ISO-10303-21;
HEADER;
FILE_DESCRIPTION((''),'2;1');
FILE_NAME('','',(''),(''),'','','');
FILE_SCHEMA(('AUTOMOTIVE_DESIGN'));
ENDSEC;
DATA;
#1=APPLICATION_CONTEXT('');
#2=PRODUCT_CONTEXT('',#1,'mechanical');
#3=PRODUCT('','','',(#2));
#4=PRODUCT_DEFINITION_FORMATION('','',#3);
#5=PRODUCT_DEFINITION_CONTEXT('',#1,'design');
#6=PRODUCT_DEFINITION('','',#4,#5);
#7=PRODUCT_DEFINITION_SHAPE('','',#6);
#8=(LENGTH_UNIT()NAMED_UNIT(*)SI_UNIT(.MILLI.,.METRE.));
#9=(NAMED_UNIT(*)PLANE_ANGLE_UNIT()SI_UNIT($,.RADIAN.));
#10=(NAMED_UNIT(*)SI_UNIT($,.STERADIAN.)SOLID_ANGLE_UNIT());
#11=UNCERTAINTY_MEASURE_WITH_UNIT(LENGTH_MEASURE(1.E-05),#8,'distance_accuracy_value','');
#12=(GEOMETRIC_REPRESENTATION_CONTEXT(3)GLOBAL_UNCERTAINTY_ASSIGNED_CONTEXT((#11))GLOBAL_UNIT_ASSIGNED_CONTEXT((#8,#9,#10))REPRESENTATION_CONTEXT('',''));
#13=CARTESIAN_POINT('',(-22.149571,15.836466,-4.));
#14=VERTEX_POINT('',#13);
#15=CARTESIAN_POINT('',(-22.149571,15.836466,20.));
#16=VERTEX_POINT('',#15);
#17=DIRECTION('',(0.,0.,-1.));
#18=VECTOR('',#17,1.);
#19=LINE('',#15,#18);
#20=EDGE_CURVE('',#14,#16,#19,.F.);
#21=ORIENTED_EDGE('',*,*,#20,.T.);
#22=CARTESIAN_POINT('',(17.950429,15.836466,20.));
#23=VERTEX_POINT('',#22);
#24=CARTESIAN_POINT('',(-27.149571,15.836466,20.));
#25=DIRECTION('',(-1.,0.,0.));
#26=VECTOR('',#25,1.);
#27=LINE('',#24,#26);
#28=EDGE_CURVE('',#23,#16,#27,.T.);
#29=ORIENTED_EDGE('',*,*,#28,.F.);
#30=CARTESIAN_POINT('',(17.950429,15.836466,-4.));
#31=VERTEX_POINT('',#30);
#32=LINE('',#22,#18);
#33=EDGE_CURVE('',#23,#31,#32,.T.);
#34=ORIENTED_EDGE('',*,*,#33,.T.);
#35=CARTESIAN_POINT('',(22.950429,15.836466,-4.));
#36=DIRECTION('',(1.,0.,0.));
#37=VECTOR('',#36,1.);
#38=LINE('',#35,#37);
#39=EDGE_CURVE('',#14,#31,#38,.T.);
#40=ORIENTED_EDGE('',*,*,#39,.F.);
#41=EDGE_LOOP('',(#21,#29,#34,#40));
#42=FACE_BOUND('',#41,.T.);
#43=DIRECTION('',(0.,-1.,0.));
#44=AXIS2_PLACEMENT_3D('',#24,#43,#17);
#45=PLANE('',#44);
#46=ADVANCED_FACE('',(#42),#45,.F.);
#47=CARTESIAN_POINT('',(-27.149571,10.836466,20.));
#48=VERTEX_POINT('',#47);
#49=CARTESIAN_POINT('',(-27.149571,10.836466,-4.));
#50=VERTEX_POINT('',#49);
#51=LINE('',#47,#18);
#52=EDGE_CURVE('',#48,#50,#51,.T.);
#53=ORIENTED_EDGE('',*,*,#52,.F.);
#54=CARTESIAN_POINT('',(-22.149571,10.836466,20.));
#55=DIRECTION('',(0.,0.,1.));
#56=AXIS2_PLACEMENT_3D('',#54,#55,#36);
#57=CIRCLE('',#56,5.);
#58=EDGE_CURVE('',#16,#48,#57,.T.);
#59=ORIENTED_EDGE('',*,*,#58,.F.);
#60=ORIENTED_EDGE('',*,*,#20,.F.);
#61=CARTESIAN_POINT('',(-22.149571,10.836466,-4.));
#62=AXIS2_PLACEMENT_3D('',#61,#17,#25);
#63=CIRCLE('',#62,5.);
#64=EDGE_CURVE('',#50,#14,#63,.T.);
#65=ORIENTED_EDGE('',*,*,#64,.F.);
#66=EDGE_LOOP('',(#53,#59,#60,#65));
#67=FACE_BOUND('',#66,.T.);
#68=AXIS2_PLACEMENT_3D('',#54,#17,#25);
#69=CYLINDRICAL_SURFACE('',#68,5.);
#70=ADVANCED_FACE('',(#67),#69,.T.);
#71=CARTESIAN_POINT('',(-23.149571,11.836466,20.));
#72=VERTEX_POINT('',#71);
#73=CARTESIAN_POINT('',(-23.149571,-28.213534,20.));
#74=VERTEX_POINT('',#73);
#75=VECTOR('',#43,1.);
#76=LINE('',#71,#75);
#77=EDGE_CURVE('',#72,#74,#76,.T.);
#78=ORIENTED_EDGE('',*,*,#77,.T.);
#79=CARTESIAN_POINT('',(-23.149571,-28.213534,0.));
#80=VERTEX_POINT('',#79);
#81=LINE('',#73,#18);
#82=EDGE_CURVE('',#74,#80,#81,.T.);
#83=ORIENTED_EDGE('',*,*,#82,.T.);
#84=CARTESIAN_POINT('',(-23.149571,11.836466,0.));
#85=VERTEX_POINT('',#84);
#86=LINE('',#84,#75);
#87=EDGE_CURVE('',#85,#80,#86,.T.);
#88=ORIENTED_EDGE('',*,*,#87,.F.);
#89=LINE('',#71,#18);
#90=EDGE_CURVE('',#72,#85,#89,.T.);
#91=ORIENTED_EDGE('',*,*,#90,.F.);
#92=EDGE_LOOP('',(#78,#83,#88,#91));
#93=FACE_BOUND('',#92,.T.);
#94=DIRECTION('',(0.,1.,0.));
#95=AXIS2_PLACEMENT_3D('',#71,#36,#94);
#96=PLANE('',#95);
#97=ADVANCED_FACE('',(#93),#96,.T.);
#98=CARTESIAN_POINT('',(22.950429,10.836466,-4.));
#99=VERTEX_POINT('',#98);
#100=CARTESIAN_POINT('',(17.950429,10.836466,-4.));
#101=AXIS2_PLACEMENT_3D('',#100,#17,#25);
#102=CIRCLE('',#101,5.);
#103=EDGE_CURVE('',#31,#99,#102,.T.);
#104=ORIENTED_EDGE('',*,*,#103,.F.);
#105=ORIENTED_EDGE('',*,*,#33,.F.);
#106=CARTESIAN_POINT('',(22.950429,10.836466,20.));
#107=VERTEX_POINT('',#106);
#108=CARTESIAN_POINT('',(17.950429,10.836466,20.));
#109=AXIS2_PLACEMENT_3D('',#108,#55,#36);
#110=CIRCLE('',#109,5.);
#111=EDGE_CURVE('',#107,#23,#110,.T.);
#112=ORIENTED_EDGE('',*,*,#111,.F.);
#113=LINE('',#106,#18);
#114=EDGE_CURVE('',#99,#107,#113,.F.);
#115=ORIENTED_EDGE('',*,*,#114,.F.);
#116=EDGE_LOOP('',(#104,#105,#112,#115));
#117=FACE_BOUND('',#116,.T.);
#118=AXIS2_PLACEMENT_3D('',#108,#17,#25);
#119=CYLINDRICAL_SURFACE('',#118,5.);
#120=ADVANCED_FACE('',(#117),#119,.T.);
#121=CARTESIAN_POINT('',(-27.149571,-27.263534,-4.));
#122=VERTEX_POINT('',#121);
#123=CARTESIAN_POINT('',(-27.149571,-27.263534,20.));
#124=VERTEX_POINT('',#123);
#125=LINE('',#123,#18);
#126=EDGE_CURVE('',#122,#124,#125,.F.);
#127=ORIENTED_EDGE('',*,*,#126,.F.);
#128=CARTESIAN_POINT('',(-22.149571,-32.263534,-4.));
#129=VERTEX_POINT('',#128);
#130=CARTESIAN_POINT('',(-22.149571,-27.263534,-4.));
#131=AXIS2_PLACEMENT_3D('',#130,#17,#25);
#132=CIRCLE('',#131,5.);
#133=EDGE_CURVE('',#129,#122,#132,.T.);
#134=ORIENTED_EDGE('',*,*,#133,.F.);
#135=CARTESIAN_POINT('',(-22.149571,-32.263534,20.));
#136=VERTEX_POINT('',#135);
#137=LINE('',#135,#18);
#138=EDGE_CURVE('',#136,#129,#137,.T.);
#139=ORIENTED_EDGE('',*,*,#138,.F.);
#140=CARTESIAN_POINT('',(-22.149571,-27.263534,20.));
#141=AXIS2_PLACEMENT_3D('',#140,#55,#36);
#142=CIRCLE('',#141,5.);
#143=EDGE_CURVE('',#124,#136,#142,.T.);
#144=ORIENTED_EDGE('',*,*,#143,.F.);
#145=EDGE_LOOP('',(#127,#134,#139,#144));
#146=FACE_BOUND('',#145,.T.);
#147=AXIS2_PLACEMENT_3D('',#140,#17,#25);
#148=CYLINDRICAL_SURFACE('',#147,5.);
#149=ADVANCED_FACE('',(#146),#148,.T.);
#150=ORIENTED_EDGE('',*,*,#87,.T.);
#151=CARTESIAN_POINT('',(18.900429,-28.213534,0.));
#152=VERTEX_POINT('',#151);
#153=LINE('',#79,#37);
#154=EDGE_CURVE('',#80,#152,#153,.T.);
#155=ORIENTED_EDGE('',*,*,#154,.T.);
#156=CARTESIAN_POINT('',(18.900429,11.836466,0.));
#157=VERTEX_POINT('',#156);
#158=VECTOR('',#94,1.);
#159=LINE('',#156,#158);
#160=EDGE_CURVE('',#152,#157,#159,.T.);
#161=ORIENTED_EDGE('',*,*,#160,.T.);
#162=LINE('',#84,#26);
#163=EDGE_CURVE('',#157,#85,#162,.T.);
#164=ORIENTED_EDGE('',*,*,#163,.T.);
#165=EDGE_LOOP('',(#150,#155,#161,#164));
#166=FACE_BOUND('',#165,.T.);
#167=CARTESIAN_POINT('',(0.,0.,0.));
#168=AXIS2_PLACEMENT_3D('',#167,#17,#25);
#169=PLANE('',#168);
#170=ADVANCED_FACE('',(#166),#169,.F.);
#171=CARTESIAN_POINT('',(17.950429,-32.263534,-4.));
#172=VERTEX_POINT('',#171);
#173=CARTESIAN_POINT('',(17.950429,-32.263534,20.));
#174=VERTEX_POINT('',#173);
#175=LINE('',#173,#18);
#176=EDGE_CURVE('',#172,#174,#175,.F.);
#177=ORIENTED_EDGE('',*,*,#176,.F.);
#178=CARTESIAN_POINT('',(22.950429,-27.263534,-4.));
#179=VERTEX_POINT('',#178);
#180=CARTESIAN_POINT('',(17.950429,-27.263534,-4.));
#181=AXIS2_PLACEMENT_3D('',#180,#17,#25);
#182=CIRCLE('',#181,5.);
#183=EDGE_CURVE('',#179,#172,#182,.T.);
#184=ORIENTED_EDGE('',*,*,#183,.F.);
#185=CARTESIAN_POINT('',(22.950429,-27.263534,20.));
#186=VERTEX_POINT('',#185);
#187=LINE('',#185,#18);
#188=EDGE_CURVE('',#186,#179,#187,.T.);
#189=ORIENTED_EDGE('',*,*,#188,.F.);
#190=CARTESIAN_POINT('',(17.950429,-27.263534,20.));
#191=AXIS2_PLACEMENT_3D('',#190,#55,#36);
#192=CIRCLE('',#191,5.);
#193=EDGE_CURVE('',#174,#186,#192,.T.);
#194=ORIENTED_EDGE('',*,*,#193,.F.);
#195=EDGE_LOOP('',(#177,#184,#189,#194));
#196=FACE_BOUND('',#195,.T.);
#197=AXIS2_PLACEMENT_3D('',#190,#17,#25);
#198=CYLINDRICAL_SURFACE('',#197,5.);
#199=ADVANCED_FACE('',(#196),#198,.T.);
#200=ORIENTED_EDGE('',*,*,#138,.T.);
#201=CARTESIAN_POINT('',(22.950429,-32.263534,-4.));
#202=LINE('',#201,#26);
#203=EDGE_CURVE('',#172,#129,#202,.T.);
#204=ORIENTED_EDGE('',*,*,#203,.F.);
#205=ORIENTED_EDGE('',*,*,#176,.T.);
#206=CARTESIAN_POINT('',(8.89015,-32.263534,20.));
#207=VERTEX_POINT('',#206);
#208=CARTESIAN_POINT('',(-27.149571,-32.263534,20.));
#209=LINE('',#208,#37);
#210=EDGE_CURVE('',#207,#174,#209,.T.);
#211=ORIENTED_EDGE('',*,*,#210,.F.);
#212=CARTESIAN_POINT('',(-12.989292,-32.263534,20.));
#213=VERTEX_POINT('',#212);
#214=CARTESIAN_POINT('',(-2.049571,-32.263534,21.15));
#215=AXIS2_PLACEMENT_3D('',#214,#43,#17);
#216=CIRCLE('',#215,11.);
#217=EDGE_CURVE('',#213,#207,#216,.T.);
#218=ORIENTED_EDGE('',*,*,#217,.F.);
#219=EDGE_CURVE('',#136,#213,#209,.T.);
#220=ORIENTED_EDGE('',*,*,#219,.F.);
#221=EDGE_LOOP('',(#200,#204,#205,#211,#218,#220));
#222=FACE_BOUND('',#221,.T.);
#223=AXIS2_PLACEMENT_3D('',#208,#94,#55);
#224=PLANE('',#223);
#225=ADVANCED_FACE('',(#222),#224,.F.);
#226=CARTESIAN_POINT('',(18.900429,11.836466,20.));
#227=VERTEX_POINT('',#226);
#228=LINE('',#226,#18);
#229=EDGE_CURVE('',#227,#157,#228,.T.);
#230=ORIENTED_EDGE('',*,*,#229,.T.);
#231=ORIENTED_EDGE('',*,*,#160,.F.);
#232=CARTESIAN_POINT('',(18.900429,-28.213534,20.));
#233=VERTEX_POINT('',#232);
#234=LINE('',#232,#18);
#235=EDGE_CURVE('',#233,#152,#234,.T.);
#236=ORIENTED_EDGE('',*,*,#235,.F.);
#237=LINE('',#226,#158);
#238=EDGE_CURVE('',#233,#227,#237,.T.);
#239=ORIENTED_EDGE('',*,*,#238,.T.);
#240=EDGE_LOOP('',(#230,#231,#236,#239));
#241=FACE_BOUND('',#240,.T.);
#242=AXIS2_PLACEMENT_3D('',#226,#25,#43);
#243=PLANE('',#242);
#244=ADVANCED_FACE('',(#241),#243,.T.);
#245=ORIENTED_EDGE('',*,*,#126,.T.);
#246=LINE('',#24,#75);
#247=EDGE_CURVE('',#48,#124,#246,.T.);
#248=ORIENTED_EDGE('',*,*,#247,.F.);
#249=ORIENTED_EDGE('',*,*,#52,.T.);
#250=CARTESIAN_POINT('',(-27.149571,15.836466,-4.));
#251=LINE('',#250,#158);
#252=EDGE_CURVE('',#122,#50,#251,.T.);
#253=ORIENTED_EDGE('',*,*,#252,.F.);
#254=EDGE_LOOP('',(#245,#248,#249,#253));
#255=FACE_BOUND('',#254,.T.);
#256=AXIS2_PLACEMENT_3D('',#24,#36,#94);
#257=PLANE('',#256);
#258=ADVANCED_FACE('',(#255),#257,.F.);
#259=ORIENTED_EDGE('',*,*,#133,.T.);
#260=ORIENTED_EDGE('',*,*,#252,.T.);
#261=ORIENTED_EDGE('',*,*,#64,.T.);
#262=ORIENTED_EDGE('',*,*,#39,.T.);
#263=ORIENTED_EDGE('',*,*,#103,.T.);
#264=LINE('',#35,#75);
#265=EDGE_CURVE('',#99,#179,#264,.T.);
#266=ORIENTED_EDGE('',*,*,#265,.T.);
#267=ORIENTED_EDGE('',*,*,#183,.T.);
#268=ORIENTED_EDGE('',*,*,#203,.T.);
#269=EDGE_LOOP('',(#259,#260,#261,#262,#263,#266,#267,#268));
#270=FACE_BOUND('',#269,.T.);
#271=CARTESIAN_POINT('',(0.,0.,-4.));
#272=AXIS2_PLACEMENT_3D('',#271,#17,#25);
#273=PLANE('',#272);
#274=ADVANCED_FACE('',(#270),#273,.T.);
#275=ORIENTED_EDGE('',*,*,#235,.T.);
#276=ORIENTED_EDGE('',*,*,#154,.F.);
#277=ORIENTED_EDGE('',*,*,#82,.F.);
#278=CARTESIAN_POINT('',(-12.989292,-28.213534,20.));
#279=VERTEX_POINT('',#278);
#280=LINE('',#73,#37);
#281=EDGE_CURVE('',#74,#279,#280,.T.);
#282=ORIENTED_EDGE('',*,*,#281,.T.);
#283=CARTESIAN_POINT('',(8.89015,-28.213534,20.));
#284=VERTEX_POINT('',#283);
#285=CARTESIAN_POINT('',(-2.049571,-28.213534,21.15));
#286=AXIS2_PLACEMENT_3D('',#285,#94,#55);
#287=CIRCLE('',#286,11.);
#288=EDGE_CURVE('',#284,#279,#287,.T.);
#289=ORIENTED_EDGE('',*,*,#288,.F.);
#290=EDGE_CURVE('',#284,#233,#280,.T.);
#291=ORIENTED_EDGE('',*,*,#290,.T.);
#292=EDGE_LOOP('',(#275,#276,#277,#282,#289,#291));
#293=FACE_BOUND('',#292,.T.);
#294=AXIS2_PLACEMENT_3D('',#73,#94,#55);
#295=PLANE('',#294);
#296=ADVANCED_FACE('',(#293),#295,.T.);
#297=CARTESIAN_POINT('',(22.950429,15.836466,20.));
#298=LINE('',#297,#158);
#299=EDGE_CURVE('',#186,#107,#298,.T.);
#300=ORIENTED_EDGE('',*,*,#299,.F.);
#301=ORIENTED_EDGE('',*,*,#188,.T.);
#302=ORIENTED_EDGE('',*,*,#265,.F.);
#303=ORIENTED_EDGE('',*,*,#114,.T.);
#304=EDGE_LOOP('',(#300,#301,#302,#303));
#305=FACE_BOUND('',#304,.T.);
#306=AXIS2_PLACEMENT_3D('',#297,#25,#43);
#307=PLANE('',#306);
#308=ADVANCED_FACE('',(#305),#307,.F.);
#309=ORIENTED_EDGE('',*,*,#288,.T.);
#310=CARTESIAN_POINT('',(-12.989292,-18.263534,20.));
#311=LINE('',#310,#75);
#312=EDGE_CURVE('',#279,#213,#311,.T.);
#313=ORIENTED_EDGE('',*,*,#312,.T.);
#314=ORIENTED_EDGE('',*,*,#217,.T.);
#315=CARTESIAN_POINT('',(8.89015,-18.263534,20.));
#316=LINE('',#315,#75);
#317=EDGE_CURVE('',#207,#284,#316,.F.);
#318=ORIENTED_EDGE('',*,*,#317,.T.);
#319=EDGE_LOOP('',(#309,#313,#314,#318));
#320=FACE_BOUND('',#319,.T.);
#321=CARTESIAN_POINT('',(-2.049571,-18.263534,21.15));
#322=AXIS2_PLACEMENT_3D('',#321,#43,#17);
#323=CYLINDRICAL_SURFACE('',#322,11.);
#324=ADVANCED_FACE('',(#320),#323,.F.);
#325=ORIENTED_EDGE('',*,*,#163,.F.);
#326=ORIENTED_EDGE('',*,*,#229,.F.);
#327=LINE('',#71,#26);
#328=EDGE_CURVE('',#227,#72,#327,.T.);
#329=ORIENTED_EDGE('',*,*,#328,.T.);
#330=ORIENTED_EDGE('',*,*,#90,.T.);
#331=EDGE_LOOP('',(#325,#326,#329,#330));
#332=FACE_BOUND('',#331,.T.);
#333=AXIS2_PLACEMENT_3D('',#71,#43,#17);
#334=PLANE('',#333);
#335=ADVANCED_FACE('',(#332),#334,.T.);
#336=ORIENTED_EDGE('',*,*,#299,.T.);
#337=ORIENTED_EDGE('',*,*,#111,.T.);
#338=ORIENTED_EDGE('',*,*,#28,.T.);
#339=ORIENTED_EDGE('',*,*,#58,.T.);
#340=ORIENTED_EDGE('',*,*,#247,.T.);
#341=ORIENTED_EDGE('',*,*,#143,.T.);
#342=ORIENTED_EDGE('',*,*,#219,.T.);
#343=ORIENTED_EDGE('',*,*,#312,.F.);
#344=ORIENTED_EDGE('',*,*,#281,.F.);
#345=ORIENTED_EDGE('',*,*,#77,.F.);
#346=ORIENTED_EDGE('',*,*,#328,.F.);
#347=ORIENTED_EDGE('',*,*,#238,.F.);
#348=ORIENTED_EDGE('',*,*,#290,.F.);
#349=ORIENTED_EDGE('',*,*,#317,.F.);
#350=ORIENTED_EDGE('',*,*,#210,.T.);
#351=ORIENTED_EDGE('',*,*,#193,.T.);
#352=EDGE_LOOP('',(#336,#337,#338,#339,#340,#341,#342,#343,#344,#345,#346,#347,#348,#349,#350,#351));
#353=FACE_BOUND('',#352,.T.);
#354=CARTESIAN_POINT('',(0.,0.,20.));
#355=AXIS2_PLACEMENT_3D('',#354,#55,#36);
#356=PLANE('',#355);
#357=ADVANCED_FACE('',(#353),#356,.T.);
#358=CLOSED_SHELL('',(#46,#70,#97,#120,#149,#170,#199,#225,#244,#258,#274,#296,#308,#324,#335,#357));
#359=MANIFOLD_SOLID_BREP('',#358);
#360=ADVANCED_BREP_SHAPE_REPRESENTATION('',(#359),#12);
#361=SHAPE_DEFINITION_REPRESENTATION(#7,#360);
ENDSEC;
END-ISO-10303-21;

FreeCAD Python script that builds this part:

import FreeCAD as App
import Part
import Sketcher
from FreeCAD import Vector


def edges_at(feature, points):
    """Names of the edges that pass closest to the given points."""
    edges = feature.Shape.Edges
    near = lambda p: min(range(len(edges)), key=lambda i: edges[i].distToShape(Part.Vertex(*p))[0])
    return sorted({f"Edge{near(p) + 1}" for p in points})

doc = App.newDocument("Part")
body = doc.addObject("PartDesign::Body", "Body")

# Sketch on XY plane
sketch1 = body.newObject("Sketcher::SketchObject", "Sketch")
sketch1.AttachmentSupport = (doc.getObject("XY_Plane"), [""])
sketch1.MapMode = "FlatFace"
sketch1.addGeometry(Part.LineSegment(Vector(-27.149571, 15.836466, 0), Vector(-27.149571, -32.263534, 0)), False)
sketch1.addGeometry(Part.LineSegment(Vector(-27.149571, -32.263534, 0), Vector(22.950429, -32.263534, 0)), False)
sketch1.addGeometry(Part.LineSegment(Vector(22.950429, -32.263534, 0), Vector(22.950429, 15.836466, 0)), False)
sketch1.addGeometry(Part.LineSegment(Vector(22.950429, 15.836466, 0), Vector(-27.149571, 15.836466, 0)), False)
sketch1.addGeometry(Part.LineSegment(Vector(18.900429, -28.213534, 0), Vector(-23.149571, -28.213534, 0)), False)
sketch1.addGeometry(Part.LineSegment(Vector(-23.149571, -28.213534, 0), Vector(-23.149571, 11.836466, 0)), False)
sketch1.addGeometry(Part.LineSegment(Vector(-23.149571, 11.836466, 0), Vector(18.900429, 11.836466, 0)), False)
sketch1.addGeometry(Part.LineSegment(Vector(18.900429, 11.836466, 0), Vector(18.900429, -28.213534, 0)), False)
sketch1.addConstraint(Sketcher.Constraint("Coincident", 0, 2, 1, 1))
sketch1.addConstraint(Sketcher.Constraint("Coincident", 1, 2, 2, 1))
sketch1.addConstraint(Sketcher.Constraint("Coincident", 2, 2, 3, 1))
sketch1.addConstraint(Sketcher.Constraint("Coincident", 3, 2, 0, 1))
sketch1.addConstraint(Sketcher.Constraint("Coincident", 4, 2, 5, 1))
sketch1.addConstraint(Sketcher.Constraint("Coincident", 5, 2, 6, 1))
sketch1.addConstraint(Sketcher.Constraint("Coincident", 6, 2, 7, 1))
sketch1.addConstraint(Sketcher.Constraint("Coincident", 7, 2, 4, 1))
sketch1.addConstraint(Sketcher.Constraint("Vertical", 0))
sketch1.addConstraint(Sketcher.Constraint("Horizontal", 1))
sketch1.addConstraint(Sketcher.Constraint("Vertical", 2))
sketch1.addConstraint(Sketcher.Constraint("Horizontal", 3))
sketch1.addConstraint(Sketcher.Constraint("Horizontal", 4))
sketch1.addConstraint(Sketcher.Constraint("Vertical", 5))
sketch1.addConstraint(Sketcher.Constraint("Horizontal", 6))
sketch1.addConstraint(Sketcher.Constraint("Vertical", 7))
sketch1.addConstraint(Sketcher.Constraint("DistanceX", 1, 1, 1, 2, 50.1))
sketch1.addConstraint(Sketcher.Constraint("DistanceY", 0, 2, 0, 1, 48.1))
sketch1.addConstraint(Sketcher.Constraint("DistanceX", 0, 2, 4, 2, 4.0))
sketch1.addConstraint(Sketcher.Constraint("DistanceY", 5, 2, 3, 2, 4.0))
sketch1.addConstraint(Sketcher.Constraint("DistanceX", 4, 2, 4, 1, 42.05))
sketch1.addConstraint(Sketcher.Constraint("DistanceY", 5, 1, 5, 2, 40.05))
sketch1.addConstraint(Sketcher.Constraint("DistanceX", 0, 2, -1, 1, 27.149571))
sketch1.addConstraint(Sketcher.Constraint("DistanceY", 0, 2, -1, 1, 32.263534))
pad1 = body.newObject("PartDesign::Pad", "Pad")
pad1.Profile = sketch1
pad1.Length = 20

# Sketch on XY plane
sketch2 = body.newObject("Sketcher::SketchObject", "Sketch001")
sketch2.AttachmentSupport = (doc.getObject("XY_Plane"), [""])
sketch2.MapMode = "FlatFace"
sketch2.addGeometry(Part.LineSegment(Vector(22.950429, 15.836466, 0), Vector(22.950429, -32.263534, 0)), False)
sketch2.addGeometry(Part.LineSegment(Vector(22.950429, -32.263534, 0), Vector(-27.149571, -32.263534, 0)), False)
sketch2.addGeometry(Part.LineSegment(Vector(-27.149571, -32.263534, 0), Vector(-27.149571, 15.836466, 0)), False)
sketch2.addGeometry(Part.LineSegment(Vector(-27.149571, 15.836466, 0), Vector(22.950429, 15.836466, 0)), False)
sketch2.addConstraint(Sketcher.Constraint("Coincident", 0, 2, 1, 1))
sketch2.addConstraint(Sketcher.Constraint("Coincident", 1, 2, 2, 1))
sketch2.addConstraint(Sketcher.Constraint("Coincident", 2, 2, 3, 1))
sketch2.addConstraint(Sketcher.Constraint("Coincident", 3, 2, 0, 1))
sketch2.addConstraint(Sketcher.Constraint("Vertical", 0))
sketch2.addConstraint(Sketcher.Constraint("Horizontal", 1))
sketch2.addConstraint(Sketcher.Constraint("Vertical", 2))
sketch2.addConstraint(Sketcher.Constraint("Horizontal", 3))
sketch2.addConstraint(Sketcher.Constraint("DistanceX", 1, 2, 1, 1, 50.1))
sketch2.addConstraint(Sketcher.Constraint("DistanceY", 0, 2, 0, 1, 48.1))
sketch2.addConstraint(Sketcher.Constraint("DistanceX", -1, 1, 0, 2, 22.950429))
sketch2.addConstraint(Sketcher.Constraint("DistanceY", 0, 2, -1, 1, 32.263534))
pad2 = body.newObject("PartDesign::Pad", "Pad001")
pad2.Profile = sketch2
pad2.Length = 4
pad2.Reversed = True

# Sketch on XZ plane
sketch3 = body.newObject("Sketcher::SketchObject", "Sketch002")
sketch3.AttachmentSupport = (doc.getObject("XZ_Plane"), [""])
sketch3.MapMode = "FlatFace"
sketch3.AttachmentOffset = App.Placement(Vector(0, 0, 32.263534), App.Rotation())
sketch3.addGeometry(Part.Circle(Vector(-2.049571, 21.15, 0), Vector(0, 0, 1), 11), False)
sketch3.addConstraint(Sketcher.Constraint("Diameter", 0, 22.0))
sketch3.addConstraint(Sketcher.Constraint("DistanceY", -1, 1, 0, 3, 21.15))
sketch3.addConstraint(Sketcher.Constraint("DistanceX", 0, 3, -1, 1, 2.049571))
pocket1 = body.newObject("PartDesign::Pocket", "Pocket")
pocket1.Profile = sketch3
pocket1.Length = 14
doc.recompute()

fillet = body.newObject("PartDesign::Fillet", "Fillet")
fillet.Base = (pocket1, edges_at(pocket1, [
    (-27.15, 15.836, 8),
    (22.95, 15.836, 8),
    (22.95, -32.264, 8),
    (-27.15, -32.264, 8),
]))
fillet.Radius = 5

doc.recompute()
